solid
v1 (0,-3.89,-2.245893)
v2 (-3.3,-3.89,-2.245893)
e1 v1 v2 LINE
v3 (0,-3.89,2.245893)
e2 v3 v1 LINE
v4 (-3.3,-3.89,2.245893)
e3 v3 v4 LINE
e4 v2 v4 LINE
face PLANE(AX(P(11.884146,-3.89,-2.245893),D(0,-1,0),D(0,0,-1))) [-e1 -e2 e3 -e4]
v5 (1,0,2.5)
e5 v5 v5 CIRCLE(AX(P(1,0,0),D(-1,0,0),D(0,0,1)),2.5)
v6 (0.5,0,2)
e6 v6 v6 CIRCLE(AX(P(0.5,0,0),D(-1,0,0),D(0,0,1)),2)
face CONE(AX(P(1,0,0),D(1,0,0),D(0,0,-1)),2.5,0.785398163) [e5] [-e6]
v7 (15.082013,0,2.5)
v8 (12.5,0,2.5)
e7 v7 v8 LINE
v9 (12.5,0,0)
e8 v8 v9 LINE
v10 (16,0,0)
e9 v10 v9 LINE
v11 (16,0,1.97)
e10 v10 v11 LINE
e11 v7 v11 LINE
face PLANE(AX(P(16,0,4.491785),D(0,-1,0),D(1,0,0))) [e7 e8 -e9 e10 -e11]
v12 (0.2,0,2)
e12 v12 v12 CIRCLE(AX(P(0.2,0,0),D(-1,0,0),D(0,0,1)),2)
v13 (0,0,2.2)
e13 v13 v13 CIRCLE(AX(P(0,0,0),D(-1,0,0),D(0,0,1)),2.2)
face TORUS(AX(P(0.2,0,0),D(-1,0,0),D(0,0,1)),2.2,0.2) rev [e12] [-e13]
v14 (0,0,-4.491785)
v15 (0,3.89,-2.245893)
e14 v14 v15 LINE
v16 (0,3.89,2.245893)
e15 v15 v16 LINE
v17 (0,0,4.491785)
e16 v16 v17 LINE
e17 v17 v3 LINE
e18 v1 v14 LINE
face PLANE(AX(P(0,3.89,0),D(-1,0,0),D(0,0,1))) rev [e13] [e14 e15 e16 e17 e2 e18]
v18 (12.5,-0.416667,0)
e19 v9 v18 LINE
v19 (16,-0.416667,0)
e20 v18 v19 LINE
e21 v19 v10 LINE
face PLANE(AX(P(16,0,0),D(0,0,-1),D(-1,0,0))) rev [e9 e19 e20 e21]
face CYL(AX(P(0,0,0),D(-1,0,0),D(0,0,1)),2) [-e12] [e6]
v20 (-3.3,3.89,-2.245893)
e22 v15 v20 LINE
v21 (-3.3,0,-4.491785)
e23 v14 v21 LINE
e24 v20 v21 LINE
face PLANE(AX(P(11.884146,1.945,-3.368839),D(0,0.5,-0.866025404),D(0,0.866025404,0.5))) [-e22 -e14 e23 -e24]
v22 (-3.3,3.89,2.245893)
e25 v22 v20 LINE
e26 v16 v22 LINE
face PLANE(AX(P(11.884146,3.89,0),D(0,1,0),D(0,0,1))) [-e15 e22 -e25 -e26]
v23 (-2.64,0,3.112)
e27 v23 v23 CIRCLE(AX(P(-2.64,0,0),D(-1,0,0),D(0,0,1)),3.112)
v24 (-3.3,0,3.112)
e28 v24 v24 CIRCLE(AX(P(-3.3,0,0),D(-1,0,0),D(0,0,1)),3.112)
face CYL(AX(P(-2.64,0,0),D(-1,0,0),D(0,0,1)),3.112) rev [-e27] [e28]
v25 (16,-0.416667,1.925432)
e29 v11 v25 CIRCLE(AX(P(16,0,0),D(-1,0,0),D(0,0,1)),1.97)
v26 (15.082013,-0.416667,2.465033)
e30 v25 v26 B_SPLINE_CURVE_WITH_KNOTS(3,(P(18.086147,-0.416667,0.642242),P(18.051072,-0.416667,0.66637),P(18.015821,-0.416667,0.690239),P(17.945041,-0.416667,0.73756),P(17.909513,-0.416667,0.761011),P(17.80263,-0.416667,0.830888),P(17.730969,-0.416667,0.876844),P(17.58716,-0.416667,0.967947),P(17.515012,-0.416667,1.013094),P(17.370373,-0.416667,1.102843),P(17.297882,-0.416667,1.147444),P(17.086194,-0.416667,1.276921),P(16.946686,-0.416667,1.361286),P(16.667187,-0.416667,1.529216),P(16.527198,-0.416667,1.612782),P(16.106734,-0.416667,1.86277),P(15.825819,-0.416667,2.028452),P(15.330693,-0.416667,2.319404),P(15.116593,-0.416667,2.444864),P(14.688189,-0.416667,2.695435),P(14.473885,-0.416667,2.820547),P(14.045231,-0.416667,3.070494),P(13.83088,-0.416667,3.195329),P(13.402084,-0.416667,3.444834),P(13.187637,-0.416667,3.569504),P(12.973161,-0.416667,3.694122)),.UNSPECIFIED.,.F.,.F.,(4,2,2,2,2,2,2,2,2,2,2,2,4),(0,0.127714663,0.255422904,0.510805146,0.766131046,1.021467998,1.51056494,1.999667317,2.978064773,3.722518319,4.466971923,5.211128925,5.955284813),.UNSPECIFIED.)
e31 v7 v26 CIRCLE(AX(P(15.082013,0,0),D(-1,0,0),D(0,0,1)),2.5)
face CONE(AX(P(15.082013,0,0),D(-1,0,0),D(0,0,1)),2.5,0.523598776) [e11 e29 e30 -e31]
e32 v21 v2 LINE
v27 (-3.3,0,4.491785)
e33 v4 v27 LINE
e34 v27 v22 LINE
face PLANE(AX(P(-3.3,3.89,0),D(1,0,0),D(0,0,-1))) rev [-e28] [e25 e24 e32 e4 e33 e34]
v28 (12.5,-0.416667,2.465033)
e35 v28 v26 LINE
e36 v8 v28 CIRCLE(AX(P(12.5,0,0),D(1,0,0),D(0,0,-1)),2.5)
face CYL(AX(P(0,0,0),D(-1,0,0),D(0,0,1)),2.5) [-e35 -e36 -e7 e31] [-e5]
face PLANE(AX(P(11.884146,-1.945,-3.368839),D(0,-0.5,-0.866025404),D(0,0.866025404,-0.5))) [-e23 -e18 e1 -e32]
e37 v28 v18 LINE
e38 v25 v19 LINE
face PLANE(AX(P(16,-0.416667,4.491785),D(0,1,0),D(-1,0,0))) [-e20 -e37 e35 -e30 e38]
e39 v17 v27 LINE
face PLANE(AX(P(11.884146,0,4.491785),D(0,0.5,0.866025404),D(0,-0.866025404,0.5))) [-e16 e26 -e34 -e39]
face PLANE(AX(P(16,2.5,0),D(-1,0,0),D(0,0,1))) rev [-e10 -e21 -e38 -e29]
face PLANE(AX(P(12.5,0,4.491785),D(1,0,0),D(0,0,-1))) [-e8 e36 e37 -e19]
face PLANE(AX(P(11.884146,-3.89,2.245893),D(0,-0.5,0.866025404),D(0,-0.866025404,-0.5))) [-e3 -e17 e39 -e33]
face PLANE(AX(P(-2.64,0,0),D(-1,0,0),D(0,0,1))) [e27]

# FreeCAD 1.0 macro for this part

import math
import FreeCAD as App
import Part
import Sketcher
Q = App.Units.Quantity

doc = App.newDocument("Part")
body = doc.addObject("PartDesign::Body", "Body")

# Sketch on XY plane
sketch1 = body.newObject("Sketcher::SketchObject", "Sketch")
sketch1.AttachmentSupport = (doc.getObject("XY_Plane"), [""])
sketch1.MapMode = "FlatFace"
sketch1.addGeometry([
    Part.LineSegment(App.Vector(16, 0, 0), App.Vector(16, 2.5, 0)),  # 0
    Part.LineSegment(App.Vector(16, 2.5, 0), App.Vector(1, 2.5, 0)),  # 1
    Part.LineSegment(App.Vector(1, 2.5, 0), App.Vector(0.5, 2, 0)),  # 2
    Part.LineSegment(App.Vector(0.5, 2, 0), App.Vector(0.2, 2, 0)),  # 3
    Part.ArcOfCircle(Part.Circle(App.Vector(0.2, 2.2, 0), App.Vector(0, 0, 1), 0.2), math.radians(-180), math.radians(-90)),  # 4
    Part.LineSegment(App.Vector(0, 2.2, 0), App.Vector(0, 3.89, 0)),  # 5
    Part.LineSegment(App.Vector(0, 3.89, 0), App.Vector(-3.3, 3.89, 0)),  # 6
    Part.LineSegment(App.Vector(-3.3, 3.89, 0), App.Vector(-3.3, 0, 0)),  # 7
    Part.LineSegment(App.Vector(-3.3, 0, 0), App.Vector(16, 0, 0)),  # 8
], False)
sketch1.addConstraint([
    Sketcher.Constraint("Coincident", 0, 2, 1, 1),
    Sketcher.Constraint("Coincident", 1, 2, 2, 1),
    Sketcher.Constraint("Coincident", 2, 2, 3, 1),
    Sketcher.Constraint("Tangent", 3, 2, 4, 2),
    Sketcher.Constraint("Tangent", 4, 1, 5, 1),
    Sketcher.Constraint("Coincident", 5, 2, 6, 1),
    Sketcher.Constraint("Coincident", 6, 2, 7, 1),
    Sketcher.Constraint("Coincident", 7, 2, 8, 1),
    Sketcher.Constraint("Coincident", 8, 2, 0, 1),
    Sketcher.Constraint("Vertical", 0),
    Sketcher.Constraint("Horizontal", 1),
    Sketcher.Constraint("Horizontal", 3),
    Sketcher.Constraint("Vertical", 5),
    Sketcher.Constraint("Horizontal", 6),
    Sketcher.Constraint("Vertical", 7),
    Sketcher.Constraint("Horizontal", 8),
    Sketcher.Constraint("PointOnObject", 4, 1, -2),
    Sketcher.Constraint("PointOnObject", 7, 2, -1),
    Sketcher.Constraint("Radius", 4, 0.2),
    Sketcher.Constraint("DistanceX", 1, 2, 1, 1, 15.0),
    Sketcher.Constraint("Angle", 2, Q("-135 deg")),
    Sketcher.Constraint("DistanceX", 3, 2, 3, 1, 0.3),
    Sketcher.Constraint("DistanceX", 6, 2, 6, 1, 3.3),
    Sketcher.Constraint("DistanceX", 8, 1, 8, 2, 19.3),
    Sketcher.Constraint("DistanceY", 0, 1, 0, 2, 2.5),
    Sketcher.Constraint("DistanceY", 5, 1, 5, 2, 1.69),
])
revolution = body.newObject("PartDesign::Revolution", "Revolution")
revolution.Profile = sketch1
revolution.ReferenceAxis = (sketch1, ["H_Axis"])
revolution.Angle = 360

# Sketch on YZ plane
sketch2 = body.newObject("Sketcher::SketchObject", "Sketch001")
sketch2.AttachmentSupport = (doc.getObject("YZ_Plane"), [""])
sketch2.MapMode = "FlatFace"
sketch2.AttachmentOffset = App.Placement(App.Vector(0, 0, -3.3), App.Rotation())
sketch2.addGeometry([
    Part.LineSegment(App.Vector(3.9, -2.2, 0), App.Vector(0, -4.5, 0)),  # 0
    Part.LineSegment(App.Vector(0, -4.5, 0), App.Vector(-3.9, -2.2, 0)),  # 1
    Part.LineSegment(App.Vector(-3.9, -2.2, 0), App.Vector(-3.9, 2.2, 0)),  # 2
    Part.LineSegment(App.Vector(-3.9, 2.2, 0), App.Vector(0, 4.5, 0)),  # 3
    Part.LineSegment(App.Vector(0, 4.5, 0), App.Vector(3.9, 2.2, 0)),  # 4
    Part.LineSegment(App.Vector(3.9, 2.2, 0), App.Vector(3.9, -2.2, 0)),  # 5
], False)
sketch2.addConstraint([
    Sketcher.Constraint("Coincident", 0, 2, 1, 1),
    Sketcher.Constraint("Coincident", 1, 2, 2, 1),
    Sketcher.Constraint("Coincident", 2, 2, 3, 1),
    Sketcher.Constraint("Coincident", 3, 2, 4, 1),
    Sketcher.Constraint("Coincident", 4, 2, 5, 1),
    Sketcher.Constraint("Coincident", 5, 2, 0, 1),
    Sketcher.Constraint("Vertical", 2),
    Sketcher.Constraint("Vertical", 5),
    Sketcher.Constraint("Symmetric", 0, 2, 3, 2, -1, 1),
    Sketcher.Constraint("Symmetric", 1, 2, 4, 2, -1, 1),
    Sketcher.Constraint("PointOnObject", 0, 2, -2),
    Sketcher.Constraint("Parallel", 0, 3),
    Sketcher.Constraint("Horizontal", 2, 2, 4, 2),
    Sketcher.Constraint("Angle", 0, Q("-150 deg")),
    Sketcher.Constraint("DistanceX", 1, 2, -1, 1, 3.89),
    Sketcher.Constraint("DistanceY", 2, 1, 2, 2, 4.491785),
])
pad1 = body.newObject("PartDesign::Pad", "Pad")
pad1.Profile = sketch2
pad1.Length = 3.3

# Sketch on XY plane
sketch3 = body.newObject("Sketcher::SketchObject", "Sketch002")
sketch3.AttachmentSupport = (doc.getObject("XY_Plane"), [""])
sketch3.MapMode = "FlatFace"
sketch3.addGeometry([
    Part.LineSegment(App.Vector(16, 0, 0), App.Vector(16.5, 0, 0)),  # 0
    Part.LineSegment(App.Vector(16.5, 0, 0), App.Vector(16.5, 3, 0)),  # 1
    Part.LineSegment(App.Vector(16.5, 3, 0), App.Vector(15.1, 3, 0)),  # 2
    Part.LineSegment(App.Vector(15.1, 3, 0), App.Vector(15.1, 2.5, 0)),  # 3
    Part.LineSegment(App.Vector(15.1, 2.5, 0), App.Vector(16, 2, 0)),  # 4
    Part.LineSegment(App.Vector(16, 2, 0), App.Vector(16, 0, 0)),  # 5
], False)
sketch3.addConstraint([
    Sketcher.Constraint("Coincident", 0, 2, 1, 1),
    Sketcher.Constraint("Coincident", 1, 2, 2, 1),
    Sketcher.Constraint("Coincident", 2, 2, 3, 1),
    Sketcher.Constraint("Coincident", 3, 2, 4, 1),
    Sketcher.Constraint("Coincident", 4, 2, 5, 1),
    Sketcher.Constraint("Coincident", 5, 2, 0, 1),
    Sketcher.Constraint("Horizontal", 0),
    Sketcher.Constraint("Vertical", 1),
    Sketcher.Constraint("Horizontal", 2),
    Sketcher.Constraint("Vertical", 3),
    Sketcher.Constraint("Vertical", 5),
    Sketcher.Constraint("PointOnObject", 0, 2, -1),
    Sketcher.Constraint("Equal", 0, 3),
    Sketcher.Constraint("Angle", 4, Q("-30 deg")),
    Sketcher.Constraint("DistanceX", -1, 1, 4, 2, 16.0),
    Sketcher.Constraint("DistanceY", 5, 2, 5, 1, 1.97),
    Sketcher.Constraint("DistanceY", -1, 1, 3, 2, 2.5),
    Sketcher.Constraint("DistanceX", 0, 1, 0, 2, 0.508),
])
groove = body.newObject("PartDesign::Groove", "Groove")
groove.Profile = sketch3
groove.ReferenceAxis = (sketch3, ["H_Axis"])
groove.Angle = 360

# Sketch on XY plane
sketch4 = body.newObject("Sketcher::SketchObject", "Sketch003")
sketch4.AttachmentSupport = (doc.getObject("XY_Plane"), [""])
sketch4.MapMode = "FlatFace"
sketch4.addGeometry([
    Part.LineSegment(App.Vector(12.5, 0, 0), App.Vector(12.5, -0.42, 0)),
    Part.LineSegment(App.Vector(12.5, -0.42, 0), App.Vector(16, -0.42, 0)),
    Part.LineSegment(App.Vector(16, -0.42, 0), App.Vector(16, 0, 0)),
    Part.LineSegment(App.Vector(16, 0, 0), App.Vector(12.5, 0, 0)),
], False)
sketch4.addConstraint([
    Sketcher.Constraint("Coincident", 0, 2, 1, 1),
    Sketcher.Constraint("Coincident", 1, 2, 2, 1),
    Sketcher.Constraint("Coincident", 2, 2, 3, 1),
    Sketcher.Constraint("Coincident", 3, 2, 0, 1),
    Sketcher.Constraint("Vertical", 0),
    Sketcher.Constraint("Horizontal", 1),
    Sketcher.Constraint("Vertical", 2),
    Sketcher.Constraint("Horizontal", 3),
    Sketcher.Constraint("PointOnObject", 2, 2, -1),
    Sketcher.Constraint("DistanceX", 1, 1, 1, 2, 3.5),
    Sketcher.Constraint("DistanceX", -1, 1, 1, 2, 16.0),
    Sketcher.Constraint("DistanceY", 0, 2, 0, 1, 0.416667),
])
pocket1 = body.newObject("PartDesign::Pocket", "Pocket")
pocket1.Profile = sketch4
pocket1.Type = "ThroughAll"
pocket1.Reversed = True

# Sketch on YZ plane
sketch5 = body.newObject("Sketcher::SketchObject", "Sketch004")
sketch5.AttachmentSupport = (doc.getObject("YZ_Plane"), [""])
sketch5.MapMode = "FlatFace"
sketch5.AttachmentOffset = App.Placement(App.Vector(0, 0, -3.3), App.Rotation())
sketch5.addGeometry(Part.Circle(App.Vector(0, 0, 0), App.Vector(0, 0, 1), 3.1), False)
sketch5.addConstraint([
    Sketcher.Constraint("Coincident", 0, 3, -1, 1),
    Sketcher.Constraint("Diameter", 0, 6.224),
])
pocket2 = body.newObject("PartDesign::Pocket", "Pocket001")
pocket2.Profile = sketch5
pocket2.Length = 0.66
pocket2.Reversed = True

doc.recompute()
